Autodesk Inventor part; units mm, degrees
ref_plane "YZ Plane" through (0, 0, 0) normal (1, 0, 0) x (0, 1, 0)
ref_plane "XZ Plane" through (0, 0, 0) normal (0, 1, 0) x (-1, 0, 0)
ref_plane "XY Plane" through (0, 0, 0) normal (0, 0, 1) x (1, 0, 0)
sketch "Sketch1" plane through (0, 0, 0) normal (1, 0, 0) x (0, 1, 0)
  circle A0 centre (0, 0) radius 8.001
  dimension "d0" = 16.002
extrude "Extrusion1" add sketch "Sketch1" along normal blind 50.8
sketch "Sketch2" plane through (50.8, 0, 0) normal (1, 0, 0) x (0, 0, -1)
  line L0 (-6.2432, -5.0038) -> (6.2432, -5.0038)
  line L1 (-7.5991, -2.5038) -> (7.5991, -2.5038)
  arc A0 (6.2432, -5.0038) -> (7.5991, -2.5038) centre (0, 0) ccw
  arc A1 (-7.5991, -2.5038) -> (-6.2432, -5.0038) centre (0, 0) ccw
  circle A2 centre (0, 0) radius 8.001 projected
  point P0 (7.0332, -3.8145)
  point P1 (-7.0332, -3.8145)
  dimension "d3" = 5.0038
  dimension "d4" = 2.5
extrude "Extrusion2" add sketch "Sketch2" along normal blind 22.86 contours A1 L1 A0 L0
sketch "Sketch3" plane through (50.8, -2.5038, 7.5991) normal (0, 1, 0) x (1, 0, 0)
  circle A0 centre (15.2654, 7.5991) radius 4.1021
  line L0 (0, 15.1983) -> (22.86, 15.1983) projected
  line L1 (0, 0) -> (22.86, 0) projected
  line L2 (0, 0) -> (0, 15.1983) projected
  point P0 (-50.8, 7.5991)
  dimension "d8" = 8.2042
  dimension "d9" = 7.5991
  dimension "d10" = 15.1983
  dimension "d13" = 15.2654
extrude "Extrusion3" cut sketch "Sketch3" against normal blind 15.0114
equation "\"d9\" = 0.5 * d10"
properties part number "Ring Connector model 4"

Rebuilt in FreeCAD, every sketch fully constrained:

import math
import FreeCAD as App
import Part
import Sketcher
from FreeCAD import Vector
Q = App.Units.Quantity

doc = App.newDocument("Part")
params = doc.addObject("Spreadsheet::Sheet", "Params")
for row, (alias, value) in enumerate([
    ("sketch1_diameter", "0.63 in"),
    ("pad1_length", "2 in"),
    ("sketch2_radius", "0.315 in"),
    ("pad2_length", "0.9 in"),
    ("sketch3_diameter", "0.323 in"),
    ("pocket1_length", "0.591 in"),
], start=1):
    params.set(f"A{row}", alias)
    params.set(f"B{row}", "=" + value)
    params.setAlias(f"B{row}", alias)

body = doc.addObject("PartDesign::Body", "Body")

# Sketch on YZ plane
sketch1 = body.newObject("Sketcher::SketchObject", "Sketch")
sketch1.AttachmentSupport = (doc.getObject("YZ_Plane"), [""])
sketch1.MapMode = "FlatFace"
sketch1.addGeometry(Part.Circle(Vector(0, 0, 0), Vector(0, 0, 1), 8.001), False)
sketch1.addConstraint([
    Sketcher.Constraint("Coincident", 0, 3, -1, 1),
    Sketcher.Constraint("Diameter", 0, Q("0.63 in")),
])
sketch1.setExpression("Constraints[1]", "Params.sketch1_diameter")
pad1 = body.newObject("PartDesign::Pad", "Pad")
pad1.Profile = sketch1
pad1.setExpression("Length", "Params.pad1_length")

# Sketch on YZ plane
sketch2 = body.newObject("Sketcher::SketchObject", "Sketch001")
sketch2.AttachmentSupport = (doc.getObject("YZ_Plane"), [""])
sketch2.MapMode = "FlatFace"
sketch2.AttachmentOffset = App.Placement(Vector(0, 0, 2 * 25.4), App.Rotation())
sketch2.addGeometry([
    Part.ArcOfCircle(Part.Circle(Vector(0, 0, 0), Vector(0, 0, 1), 8.001), math.radians(108.236348), math.radians(128.711477)),
    Part.LineSegment(Vector(-5.0038, 6.2432, 0), Vector(-5.0038, -6.2432, 0)),
    Part.ArcOfCircle(Part.Circle(Vector(0, 0, 0), Vector(0, 0, 1), 8.000958), math.radians(-128.711477), math.radians(-108.236348)),
    Part.LineSegment(Vector(-2.5038, -7.5991, 0), Vector(-2.5038, 7.5991, 0)),
], False)
sketch2.addConstraint([
    Sketcher.Constraint("Coincident", 0, 2, 1, 1),
    Sketcher.Constraint("Coincident", 1, 2, 2, 1),
    Sketcher.Constraint("Coincident", 2, 2, 3, 1),
    Sketcher.Constraint("Coincident", 3, 2, 0, 1),
    Sketcher.Constraint("Vertical", 1),
    Sketcher.Constraint("Vertical", 3),
    Sketcher.Constraint("Coincident", 0, 3, -1, 1),
    Sketcher.Constraint("Coincident", 2, 3, -1, 1),
    Sketcher.Constraint("Equal", 0, 2),
    Sketcher.Constraint("DistanceX", 0, 2, -1, 1, Q("0.197 in")),
    Sketcher.Constraint("Radius", 0, Q("0.315 in")),
    Sketcher.Constraint("DistanceX", 1, 2, 2, 2, 2.5),
])
sketch2.setExpression("Constraints[10]", "Params.sketch2_radius")
pad2 = body.newObject("PartDesign::Pad", "Pad001")
pad2.Profile = sketch2
pad2.setExpression("Length", "Params.pad2_length")

# Sketch on XZ plane
sketch3 = body.newObject("Sketcher::SketchObject", "Sketch002")
sketch3.AttachmentSupport = (doc.getObject("XZ_Plane"), [""])
sketch3.MapMode = "FlatFace"
sketch3.AttachmentOffset = App.Placement(Vector(0, 0, 2.5038), App.Rotation())
sketch3.addGeometry(Part.Circle(Vector(66.0654, 0, 0), Vector(0, 0, 1), 4.1021), False)
sketch3.addConstraint([
    Sketcher.Constraint("PointOnObject", 0, 3, -1),
    Sketcher.Constraint("Diameter", 0, Q("0.323 in")),
    Sketcher.Constraint("DistanceX", -1, 1, 0, 3, Q("2.601 in")),
])
sketch3.setExpression("Constraints[1]", "Params.sketch3_diameter")
pocket1 = body.newObject("PartDesign::Pocket", "Pocket")
pocket1.Profile = sketch3
pocket1.setExpression("Length", "Params.pocket1_length")
pocket1.Reversed = True

doc.recompute()
